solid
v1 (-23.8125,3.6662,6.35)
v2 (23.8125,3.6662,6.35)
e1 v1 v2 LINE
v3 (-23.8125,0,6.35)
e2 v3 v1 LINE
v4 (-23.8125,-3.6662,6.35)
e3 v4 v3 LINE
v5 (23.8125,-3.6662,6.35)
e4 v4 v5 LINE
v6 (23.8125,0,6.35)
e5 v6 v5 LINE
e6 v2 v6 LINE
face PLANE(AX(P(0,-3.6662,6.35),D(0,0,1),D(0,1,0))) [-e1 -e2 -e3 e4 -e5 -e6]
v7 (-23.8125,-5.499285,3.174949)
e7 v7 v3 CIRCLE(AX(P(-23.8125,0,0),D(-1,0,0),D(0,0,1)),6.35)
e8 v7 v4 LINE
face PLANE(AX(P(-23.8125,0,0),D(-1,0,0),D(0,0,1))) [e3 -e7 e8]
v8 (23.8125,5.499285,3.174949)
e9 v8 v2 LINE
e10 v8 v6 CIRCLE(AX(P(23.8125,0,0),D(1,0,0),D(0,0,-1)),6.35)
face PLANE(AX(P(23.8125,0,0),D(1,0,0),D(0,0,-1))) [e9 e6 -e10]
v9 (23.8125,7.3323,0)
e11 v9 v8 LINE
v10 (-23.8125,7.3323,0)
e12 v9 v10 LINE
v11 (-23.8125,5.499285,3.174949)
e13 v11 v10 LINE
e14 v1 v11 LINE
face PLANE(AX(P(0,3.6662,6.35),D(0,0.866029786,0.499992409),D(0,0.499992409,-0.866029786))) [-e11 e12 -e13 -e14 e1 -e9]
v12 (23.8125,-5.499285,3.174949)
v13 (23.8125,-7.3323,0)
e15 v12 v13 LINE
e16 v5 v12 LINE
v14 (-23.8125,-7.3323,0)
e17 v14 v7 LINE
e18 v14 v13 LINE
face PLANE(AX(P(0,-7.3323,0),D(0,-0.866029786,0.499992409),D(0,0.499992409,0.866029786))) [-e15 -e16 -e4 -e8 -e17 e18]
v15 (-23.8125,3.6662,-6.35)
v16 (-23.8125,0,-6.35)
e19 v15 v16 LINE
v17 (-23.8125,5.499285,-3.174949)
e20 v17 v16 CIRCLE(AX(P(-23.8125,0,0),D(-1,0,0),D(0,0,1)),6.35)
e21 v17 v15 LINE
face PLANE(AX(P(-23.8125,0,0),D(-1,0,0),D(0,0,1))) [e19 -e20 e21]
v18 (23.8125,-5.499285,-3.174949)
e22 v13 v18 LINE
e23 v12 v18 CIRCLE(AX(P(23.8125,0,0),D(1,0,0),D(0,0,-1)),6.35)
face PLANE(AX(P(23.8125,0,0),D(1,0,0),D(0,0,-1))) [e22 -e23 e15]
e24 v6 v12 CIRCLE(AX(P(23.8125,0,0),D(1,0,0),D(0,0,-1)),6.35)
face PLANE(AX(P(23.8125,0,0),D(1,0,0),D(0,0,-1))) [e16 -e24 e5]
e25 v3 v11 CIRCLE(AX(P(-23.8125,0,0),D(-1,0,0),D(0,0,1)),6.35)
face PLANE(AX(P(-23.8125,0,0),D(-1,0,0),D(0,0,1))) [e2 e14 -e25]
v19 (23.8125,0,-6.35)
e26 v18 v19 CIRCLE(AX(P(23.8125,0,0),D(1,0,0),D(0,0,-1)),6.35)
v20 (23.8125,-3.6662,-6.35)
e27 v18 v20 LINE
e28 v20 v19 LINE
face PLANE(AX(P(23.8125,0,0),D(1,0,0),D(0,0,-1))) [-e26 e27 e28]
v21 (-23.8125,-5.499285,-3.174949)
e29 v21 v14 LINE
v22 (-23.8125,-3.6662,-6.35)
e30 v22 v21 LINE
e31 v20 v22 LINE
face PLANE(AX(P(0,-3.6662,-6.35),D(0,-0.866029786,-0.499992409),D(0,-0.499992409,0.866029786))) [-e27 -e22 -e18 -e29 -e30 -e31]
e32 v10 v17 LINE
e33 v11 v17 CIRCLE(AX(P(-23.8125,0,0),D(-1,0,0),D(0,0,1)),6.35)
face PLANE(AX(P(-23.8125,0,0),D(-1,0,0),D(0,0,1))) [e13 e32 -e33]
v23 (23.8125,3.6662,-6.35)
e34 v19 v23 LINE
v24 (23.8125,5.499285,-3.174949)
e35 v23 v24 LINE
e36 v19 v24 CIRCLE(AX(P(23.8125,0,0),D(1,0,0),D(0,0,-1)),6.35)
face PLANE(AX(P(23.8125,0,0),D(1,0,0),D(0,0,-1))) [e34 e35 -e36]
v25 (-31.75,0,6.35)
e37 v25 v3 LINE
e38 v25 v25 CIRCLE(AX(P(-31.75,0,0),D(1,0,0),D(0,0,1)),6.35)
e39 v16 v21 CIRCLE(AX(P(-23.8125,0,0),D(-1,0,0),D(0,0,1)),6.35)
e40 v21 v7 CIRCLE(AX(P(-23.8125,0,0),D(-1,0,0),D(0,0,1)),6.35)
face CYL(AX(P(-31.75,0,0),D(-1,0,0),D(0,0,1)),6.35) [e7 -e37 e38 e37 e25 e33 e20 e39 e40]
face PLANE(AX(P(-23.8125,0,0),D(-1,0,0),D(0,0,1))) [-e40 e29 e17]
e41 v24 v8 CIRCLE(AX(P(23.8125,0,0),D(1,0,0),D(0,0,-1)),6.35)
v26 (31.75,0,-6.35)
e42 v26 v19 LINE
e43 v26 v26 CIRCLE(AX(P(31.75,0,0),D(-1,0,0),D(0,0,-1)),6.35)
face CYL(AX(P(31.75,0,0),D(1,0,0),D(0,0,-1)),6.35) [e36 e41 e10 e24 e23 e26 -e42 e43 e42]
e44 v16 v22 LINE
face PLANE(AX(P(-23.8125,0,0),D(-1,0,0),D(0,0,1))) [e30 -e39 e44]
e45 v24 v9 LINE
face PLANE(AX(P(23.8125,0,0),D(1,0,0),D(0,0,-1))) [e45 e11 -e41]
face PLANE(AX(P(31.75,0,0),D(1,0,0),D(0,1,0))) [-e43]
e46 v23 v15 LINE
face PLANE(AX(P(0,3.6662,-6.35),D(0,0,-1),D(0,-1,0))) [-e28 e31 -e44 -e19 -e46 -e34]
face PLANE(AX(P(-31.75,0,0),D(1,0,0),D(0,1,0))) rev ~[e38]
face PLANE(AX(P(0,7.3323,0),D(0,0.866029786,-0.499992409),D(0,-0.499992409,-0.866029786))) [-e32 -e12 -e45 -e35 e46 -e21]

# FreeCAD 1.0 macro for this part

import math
import FreeCAD as App
import Part
import Sketcher
Q = App.Units.Quantity


def add_polygon(sketch, points):
    """Adds a closed chain of lines whose ends are joined by coincident constraints."""
    first, n = sketch.GeometryCount, len(points)
    for a, b in zip(points, points[1:] + points[:1]):
        sketch.addGeometry(Part.LineSegment(App.Vector(*a, 0), App.Vector(*b, 0)), False)
    for i in range(n):
        sketch.addConstraint(Sketcher.Constraint("Coincident", first + i, 2, first + (i + 1) % n, 1))

doc = App.newDocument("Part")
body = doc.addObject("PartDesign::Body", "Body")

# Sketch on YZ plane
sketch1 = body.newObject("Sketcher::SketchObject", "Sketch")
sketch1.AttachmentSupport = (doc.getObject("YZ_Plane"), [""])
sketch1.MapMode = "FlatFace"
add_polygon(sketch1, [(7.3323, 0), (3.6662, 6.35), (-3.6662, 6.35), (-7.3323, 0), (-3.6662, -6.35), (3.6662, -6.35)])  # lines 0-5
sketch1.addConstraint([
    Sketcher.Constraint("Horizontal", 1),
    Sketcher.Constraint("Horizontal", 4),
    Sketcher.Constraint("Symmetric", 0, 2, 3, 2, -1, 1),
    Sketcher.Constraint("Symmetric", 2, 2, 5, 2, -1, 1),
    Sketcher.Constraint("PointOnObject", 2, 2, -1),
    Sketcher.Constraint("Parallel", 2, 5),
    Sketcher.Constraint("Vertical", 1, 2, 3, 2),
    Sketcher.Constraint("DistanceY", 3, 2, 1, 2, Q("0.5 in")),
    Sketcher.Constraint("Angle", 0, Q("119.9995 deg")),
    Sketcher.Constraint("DistanceX", 2, 2, 0, 2, Q("0.433 in")),
])
pad1 = body.newObject("PartDesign::Pad", "Pad")
pad1.Profile = sketch1
pad1.Length = Q("2.5 in")
pad1.Midplane = True

# Sketch on YZ plane
sketch2 = body.newObject("Sketcher::SketchObject", "Sketch001")
sketch2.AttachmentSupport = (doc.getObject("YZ_Plane"), [""])
sketch2.MapMode = "FlatFace"
sketch2.AttachmentOffset = App.Placement(App.Vector(0, 0, 1.25 * 25.4), App.Rotation())
sketch2.addGeometry([
    Part.LineSegment(App.Vector(0, 6.35, 0), App.Vector(-3.6662, 6.35, 0)),  # 0
    Part.LineSegment(App.Vector(-3.6662, 6.35, 0), App.Vector(-5.499281, 3.174947, 0)),  # 1
    Part.ArcOfCircle(Part.Circle(App.Vector(0, 0, 0), App.Vector(0, 0, 1), 6.35), math.radians(90), math.radians(150.000502)),  # 2
    Part.ArcOfCircle(Part.Circle(App.Vector(0, 0, 0), App.Vector(0, 0, 1), 6.35), math.radians(150.000502), math.radians(209.999498)),  # 3
    Part.LineSegment(App.Vector(-5.499281, 3.174947, 0), App.Vector(-7.3323, 0, 0)),  # 4
    Part.LineSegment(App.Vector(-7.3323, 0, 0), App.Vector(-5.499281, -3.174947, 0)),  # 5
    Part.LineSegment(App.Vector(3.6662, 6.35, 0), App.Vector(0, 6.35, 0)),  # 6
    Part.ArcOfCircle(Part.Circle(App.Vector(0, 0, 0), App.Vector(0, 0, 1), 6.35), math.radians(29.999498), math.radians(90)),  # 7
    Part.LineSegment(App.Vector(5.499281, 3.174947, 0), App.Vector(3.6662, 6.35, 0)),  # 8
    Part.ArcOfCircle(Part.Circle(App.Vector(0, 0, 0), App.Vector(0, 0, 1), 6.35), math.radians(-150.000502), math.radians(-90)),  # 9
    Part.LineSegment(App.Vector(-5.499281, -3.174947, 0), App.Vector(-3.6662, -6.35, 0)),  # 10
    Part.LineSegment(App.Vector(-3.6662, -6.35, 0), App.Vector(0, -6.35, 0)),  # 11
    Part.LineSegment(App.Vector(7.3323, 0, 0), App.Vector(5.499281, 3.174947, 0)),  # 12
    Part.ArcOfCircle(Part.Circle(App.Vector(0, 0, 0), App.Vector(0, 0, 1), 6.35), math.radians(-29.999498), math.radians(29.999498)),  # 13
    Part.LineSegment(App.Vector(5.499281, -3.174947, 0), App.Vector(7.3323, 0, 0)),  # 14
    Part.ArcOfCircle(Part.Circle(App.Vector(0, 0, 0), App.Vector(0, 0, 1), 6.35), math.radians(-90), math.radians(-29.999498)),  # 15
    Part.LineSegment(App.Vector(0, -6.35, 0), App.Vector(3.6662, -6.35, 0)),  # 16
    Part.LineSegment(App.Vector(3.6662, -6.35, 0), App.Vector(5.499281, -3.174947, 0)),  # 17
], False)
sketch2.addConstraint([
    Sketcher.Constraint("Coincident", 0, 2, 1, 1),
    Sketcher.Constraint("Tangent", 1, 2, 2, 2),
    Sketcher.Constraint("Tangent", 2, 1, 0, 1),
    Sketcher.Constraint("Tangent", 3, 1, 4, 1),
    Sketcher.Constraint("Coincident", 4, 2, 5, 1),
    Sketcher.Constraint("Tangent", 5, 2, 3, 2),
    Sketcher.Constraint("Tangent", 6, 2, 7, 2),
    Sketcher.Constraint("Tangent", 7, 1, 8, 1),
    Sketcher.Constraint("Coincident", 8, 2, 6, 1),
    Sketcher.Constraint("Tangent", 9, 1, 10, 1),
    Sketcher.Constraint("Coincident", 10, 2, 11, 1),
    Sketcher.Constraint("Tangent", 11, 2, 9, 2),
    Sketcher.Constraint("Tangent", 12, 2, 13, 2),
    Sketcher.Constraint("Tangent", 13, 1, 14, 1),
    Sketcher.Constraint("Coincident", 14, 2, 12, 1),
    Sketcher.Constraint("Tangent", 15, 1, 16, 1),
    Sketcher.Constraint("Coincident", 16, 2, 17, 1),
    Sketcher.Constraint("Tangent", 17, 2, 15, 2),
    Sketcher.Constraint("Horizontal", 0),
    Sketcher.Constraint("Horizontal", 6),
    Sketcher.Constraint("Horizontal", 11),
    Sketcher.Constraint("Horizontal", 16),
    Sketcher.Constraint("Coincident", 2, 3, -1, 1),
    Sketcher.Constraint("Coincident", 3, 3, -1, 1),
    Sketcher.Constraint("Coincident", 7, 3, -1, 1),
    Sketcher.Constraint("Coincident", 9, 3, -1, 1),
    Sketcher.Constraint("Coincident", 13, 3, -1, 1),
    Sketcher.Constraint("Coincident", 15, 3, -1, 1),
    Sketcher.Constraint("Coincident", 3, 1, 1, 2),
    Sketcher.Constraint("Coincident", 9, 1, 5, 2),
    Sketcher.Constraint("Coincident", 12, 2, 7, 1),
    Sketcher.Constraint("Coincident", 17, 2, 13, 1),
    Sketcher.Constraint("Equal", 3, 7),
    Sketcher.Constraint("Symmetric", 4, 2, 14, 2, -1, 1),
    Sketcher.Constraint("PointOnObject", 4, 2, -1),
    Sketcher.Constraint("Equal", 1, 4),
    Sketcher.Constraint("Radius", 2, Q("0.25 in")),
])
pocket1 = body.newObject("PartDesign::Pocket", "Pocket")
pocket1.Profile = sketch2
pocket1.Length = Q("0.3125 in")

# Sketch on YZ plane
sketch3 = body.newObject("Sketcher::SketchObject", "Sketch002")
sketch3.AttachmentSupport = (doc.getObject("YZ_Plane"), [""])
sketch3.MapMode = "FlatFace"
sketch3.AttachmentOffset = App.Placement(App.Vector(0, 0, -1.25 * 25.4), App.Rotation())
sketch3.addGeometry([
    Part.LineSegment(App.Vector(-5.499281, -3.174947, 0), App.Vector(-7.3323, 0, 0)),  # 0
    Part.LineSegment(App.Vector(-7.3323, 0, 0), App.Vector(-5.499281, 3.174947, 0)),  # 1
    Part.ArcOfCircle(Part.Circle(App.Vector(0, 0, 0), App.Vector(0, 0, 1), 6.35), math.radians(150.000502), math.radians(209.999498)),  # 2
    Part.ArcOfCircle(Part.Circle(App.Vector(0, 0, 0), App.Vector(0, 0, 1), 6.35), math.radians(90), math.radians(150.000502)),  # 3
    Part.LineSegment(App.Vector(-5.499281, 3.174947, 0), App.Vector(-3.6662, 6.35, 0)),  # 4
    Part.LineSegment(App.Vector(-3.6662, 6.35, 0), App.Vector(0, 6.35, 0)),  # 5
    Part.LineSegment(App.Vector(-3.6662, -6.35, 0), App.Vector(-5.499281, -3.174947, 0)),  # 6
    Part.ArcOfCircle(Part.Circle(App.Vector(0, 0, 0), App.Vector(0, 0, 1), 6.35), math.radians(-150.000502), math.radians(-90)),  # 7
    Part.LineSegment(App.Vector(0, -6.35, 0), App.Vector(-3.6662, -6.35, 0)),  # 8
    Part.ArcOfCircle(Part.Circle(App.Vector(0, 0, 0), App.Vector(0, 0, 1), 6.35), math.radians(29.999498), math.radians(90)),  # 9
    Part.LineSegment(App.Vector(0, 6.35, 0), App.Vector(3.6662, 6.35, 0)),  # 10
    Part.LineSegment(App.Vector(3.6662, 6.35, 0), App.Vector(5.499281, 3.174947, 0)),  # 11
    Part.LineSegment(App.Vector(3.6662, -6.35, 0), App.Vector(0, -6.35, 0)),  # 12
    Part.ArcOfCircle(Part.Circle(App.Vector(0, 0, 0), App.Vector(0, 0, 1), 6.35), math.radians(-90), math.radians(-29.999498)),  # 13
    Part.LineSegment(App.Vector(5.499281, -3.174947, 0), App.Vector(3.6662, -6.35, 0)),  # 14
    Part.ArcOfCircle(Part.Circle(App.Vector(0, 0, 0), App.Vector(0, 0, 1), 6.35), math.radians(-29.999498), math.radians(29.999498)),  # 15
    Part.LineSegment(App.Vector(5.499281, 3.174947, 0), App.Vector(7.3323, 0, 0)),  # 16
    Part.LineSegment(App.Vector(7.3323, 0, 0), App.Vector(5.499281, -3.174947, 0)),  # 17
], False)
sketch3.addConstraint([
    Sketcher.Constraint("Coincident", 0, 2, 1, 1),
    Sketcher.Constraint("Tangent", 1, 2, 2, 1),
    Sketcher.Constraint("Tangent", 2, 2, 0, 1),
    Sketcher.Constraint("Tangent", 3, 2, 4, 1),
    Sketcher.Constraint("Coincident", 4, 2, 5, 1),
    Sketcher.Constraint("Tangent", 5, 2, 3, 1),
    Sketcher.Constraint("Tangent", 6, 2, 7, 1),
    Sketcher.Constraint("Tangent", 7, 2, 8, 1),
    Sketcher.Constraint("Coincident", 8, 2, 6, 1),
    Sketcher.Constraint("Tangent", 9, 2, 10, 1),
    Sketcher.Constraint("Coincident", 10, 2, 11, 1),
    Sketcher.Constraint("Tangent", 11, 2, 9, 1),
    Sketcher.Constraint("Tangent", 12, 2, 13, 1),
    Sketcher.Constraint("Tangent", 13, 2, 14, 1),
    Sketcher.Constraint("Coincident", 14, 2, 12, 1),
    Sketcher.Constraint("Tangent", 15, 2, 16, 1),
    Sketcher.Constraint("Coincident", 16, 2, 17, 1),
    Sketcher.Constraint("Tangent", 17, 2, 15, 1),
    Sketcher.Constraint("Horizontal", 5),
    Sketcher.Constraint("Horizontal", 8),
    Sketcher.Constraint("Horizontal", 10),
    Sketcher.Constraint("Horizontal", 12),
    Sketcher.Constraint("Coincident", 2, 3, -1, 1),
    Sketcher.Constraint("Coincident", 3, 3, -1, 1),
    Sketcher.Constraint("Coincident", 7, 3, -1, 1),
    Sketcher.Constraint("Coincident", 9, 3, -1, 1),
    Sketcher.Constraint("Coincident", 13, 3, -1, 1),
    Sketcher.Constraint("Coincident", 15, 3, -1, 1),
    Sketcher.Constraint("Coincident", 3, 2, 1, 2),
    Sketcher.Constraint("Coincident", 6, 2, 2, 2),
    Sketcher.Constraint("Coincident", 15, 2, 11, 2),
    Sketcher.Constraint("Coincident", 17, 2, 13, 2),
    Sketcher.Constraint("Equal", 7, 9),
    Sketcher.Constraint("Symmetric", 0, 2, 16, 2, -1, 1),
    Sketcher.Constraint("PointOnObject", 0, 2, -1),
    Sketcher.Constraint("Equal", 1, 4),
    Sketcher.Constraint("Radius", 2, Q("0.25 in")),
])
pocket2 = body.newObject("PartDesign::Pocket", "Pocket001")
pocket2.Profile = sketch3
pocket2.Length = Q("0.3125 in")
pocket2.Reversed = True

doc.recompute()
